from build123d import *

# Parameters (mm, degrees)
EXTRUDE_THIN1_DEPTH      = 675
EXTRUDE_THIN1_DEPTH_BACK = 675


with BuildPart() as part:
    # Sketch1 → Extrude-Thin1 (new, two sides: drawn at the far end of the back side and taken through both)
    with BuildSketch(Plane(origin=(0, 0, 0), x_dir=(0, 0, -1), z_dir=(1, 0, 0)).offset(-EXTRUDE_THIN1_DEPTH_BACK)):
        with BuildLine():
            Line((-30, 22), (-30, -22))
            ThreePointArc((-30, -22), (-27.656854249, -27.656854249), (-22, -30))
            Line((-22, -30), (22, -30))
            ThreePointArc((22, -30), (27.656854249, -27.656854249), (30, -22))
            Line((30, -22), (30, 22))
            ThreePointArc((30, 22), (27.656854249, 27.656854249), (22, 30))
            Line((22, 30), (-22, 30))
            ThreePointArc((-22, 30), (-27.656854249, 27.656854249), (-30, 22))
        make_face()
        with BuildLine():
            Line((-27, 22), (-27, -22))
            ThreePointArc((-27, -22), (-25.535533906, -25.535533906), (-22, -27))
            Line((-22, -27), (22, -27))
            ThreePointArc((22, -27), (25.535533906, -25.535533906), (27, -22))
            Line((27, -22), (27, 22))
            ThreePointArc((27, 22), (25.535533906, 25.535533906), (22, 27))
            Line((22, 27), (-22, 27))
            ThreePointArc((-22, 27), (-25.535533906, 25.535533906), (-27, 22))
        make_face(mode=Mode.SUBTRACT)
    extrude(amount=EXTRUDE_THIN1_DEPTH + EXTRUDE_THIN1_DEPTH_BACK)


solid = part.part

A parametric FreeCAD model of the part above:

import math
import FreeCAD as App
import Part
import Sketcher

V = App.Vector
Q = App.Units.Quantity

doc = App.newDocument("Part")
body = doc.addObject("PartDesign::Body", "Body")

# Sketch on YZ plane
sketch1 = body.newObject("Sketcher::SketchObject", "Sketch")
sketch1.AttachmentSupport = (doc.getObject("YZ_Plane"), [""])
sketch1.MapMode = "FlatFace"
sketch1.addGeometry([
    Part.LineSegment(V(22, 30, 0), V(-22, 30, 0)),  # 0
    Part.ArcOfCircle(Part.Circle(V(-22, 22, 0), V(0, 0, 1), 8), math.radians(90), math.radians(180)),  # 1
    Part.LineSegment(V(-30, 22, 0), V(-30, -22, 0)),  # 2
    Part.ArcOfCircle(Part.Circle(V(-22, -22, 0), V(0, 0, 1), 8), math.radians(-180), math.radians(-90)),  # 3
    Part.LineSegment(V(-22, -30, 0), V(22, -30, 0)),  # 4
    Part.ArcOfCircle(Part.Circle(V(22, -22, 0), V(0, 0, 1), 8), math.radians(-90), math.radians(0)),  # 5
    Part.LineSegment(V(30, -22, 0), V(30, 22, 0)),  # 6
    Part.ArcOfCircle(Part.Circle(V(22, 22, 0), V(0, 0, 1), 8), math.radians(0), math.radians(90)),  # 7
    Part.LineSegment(V(-22, 27, 0), V(22, 27, 0)),  # 8
    Part.ArcOfCircle(Part.Circle(V(22, 22, 0), V(0, 0, 1), 5), math.radians(0), math.radians(90)),  # 9
    Part.LineSegment(V(27, 22, 0), V(27, -22, 0)),  # 10
    Part.ArcOfCircle(Part.Circle(V(22, -22, 0), V(0, 0, 1), 5), math.radians(-90), math.radians(0)),  # 11
    Part.LineSegment(V(22, -27, 0), V(-22, -27, 0)),  # 12
    Part.ArcOfCircle(Part.Circle(V(-22, -22, 0), V(0, 0, 1), 5), math.radians(180), math.radians(270)),  # 13
    Part.LineSegment(V(-27, -22, 0), V(-27, 22, 0)),  # 14
    Part.ArcOfCircle(Part.Circle(V(-22, 22, 0), V(0, 0, 1), 5), math.radians(90), math.radians(180)),  # 15
], False)
sketch1.addConstraint([
    Sketcher.Constraint("Tangent", 0, 2, 1, 1),
    Sketcher.Constraint("Tangent", 1, 2, 2, 1),
    Sketcher.Constraint("Tangent", 2, 2, 3, 1),
    Sketcher.Constraint("Tangent", 3, 2, 4, 1),
    Sketcher.Constraint("Tangent", 4, 2, 5, 1),
    Sketcher.Constraint("Tangent", 5, 2, 6, 1),
    Sketcher.Constraint("Tangent", 6, 2, 7, 1),
    Sketcher.Constraint("Tangent", 7, 2, 0, 1),
    Sketcher.Constraint("Tangent", 8, 2, 9, 2),
    Sketcher.Constraint("Tangent", 9, 1, 10, 1),
    Sketcher.Constraint("Tangent", 10, 2, 11, 2),
    Sketcher.Constraint("Tangent", 11, 1, 12, 1),
    Sketcher.Constraint("Tangent", 12, 2, 13, 2),
    Sketcher.Constraint("Tangent", 13, 1, 14, 1),
    Sketcher.Constraint("Tangent", 14, 2, 15, 2),
    Sketcher.Constraint("Tangent", 15, 1, 8, 1),
    Sketcher.Constraint("Horizontal", 0),
    Sketcher.Constraint("Vertical", 2),
    Sketcher.Constraint("Horizontal", 4),
    Sketcher.Constraint("Vertical", 6),
    Sketcher.Constraint("Horizontal", 8),
    Sketcher.Constraint("Vertical", 10),
    Sketcher.Constraint("Horizontal", 12),
    Sketcher.Constraint("Vertical", 14),
    Sketcher.Constraint("Coincident", 9, 3, 7, 3),
    Sketcher.Constraint("Coincident", 11, 3, 5, 3),
    Sketcher.Constraint("Coincident", 13, 3, 3, 3),
    Sketcher.Constraint("Equal", 1, 3),
    Sketcher.Constraint("Equal", 3, 5),
    Sketcher.Constraint("Equal", 5, 7),
    Sketcher.Constraint("Equal", 13, 15),
    Sketcher.Constraint("Symmetric", 1, 3, 5, 3, -1, 1),
    Sketcher.Constraint("Equal", 12, 2),
    Sketcher.Constraint("Radius", 1, Q("8 mm")),
    Sketcher.Constraint("Radius", 9, Q("5 mm")),
    Sketcher.Constraint("DistanceX", 0, 2, 0, 1, Q("44 mm")),
])
pad1 = body.newObject("PartDesign::Pad", "Pad")
pad1.Profile = sketch1
pad1.Type = "TwoLengths"
pad1.Length = 675
pad1.Length2 = 675

doc.recompute()
